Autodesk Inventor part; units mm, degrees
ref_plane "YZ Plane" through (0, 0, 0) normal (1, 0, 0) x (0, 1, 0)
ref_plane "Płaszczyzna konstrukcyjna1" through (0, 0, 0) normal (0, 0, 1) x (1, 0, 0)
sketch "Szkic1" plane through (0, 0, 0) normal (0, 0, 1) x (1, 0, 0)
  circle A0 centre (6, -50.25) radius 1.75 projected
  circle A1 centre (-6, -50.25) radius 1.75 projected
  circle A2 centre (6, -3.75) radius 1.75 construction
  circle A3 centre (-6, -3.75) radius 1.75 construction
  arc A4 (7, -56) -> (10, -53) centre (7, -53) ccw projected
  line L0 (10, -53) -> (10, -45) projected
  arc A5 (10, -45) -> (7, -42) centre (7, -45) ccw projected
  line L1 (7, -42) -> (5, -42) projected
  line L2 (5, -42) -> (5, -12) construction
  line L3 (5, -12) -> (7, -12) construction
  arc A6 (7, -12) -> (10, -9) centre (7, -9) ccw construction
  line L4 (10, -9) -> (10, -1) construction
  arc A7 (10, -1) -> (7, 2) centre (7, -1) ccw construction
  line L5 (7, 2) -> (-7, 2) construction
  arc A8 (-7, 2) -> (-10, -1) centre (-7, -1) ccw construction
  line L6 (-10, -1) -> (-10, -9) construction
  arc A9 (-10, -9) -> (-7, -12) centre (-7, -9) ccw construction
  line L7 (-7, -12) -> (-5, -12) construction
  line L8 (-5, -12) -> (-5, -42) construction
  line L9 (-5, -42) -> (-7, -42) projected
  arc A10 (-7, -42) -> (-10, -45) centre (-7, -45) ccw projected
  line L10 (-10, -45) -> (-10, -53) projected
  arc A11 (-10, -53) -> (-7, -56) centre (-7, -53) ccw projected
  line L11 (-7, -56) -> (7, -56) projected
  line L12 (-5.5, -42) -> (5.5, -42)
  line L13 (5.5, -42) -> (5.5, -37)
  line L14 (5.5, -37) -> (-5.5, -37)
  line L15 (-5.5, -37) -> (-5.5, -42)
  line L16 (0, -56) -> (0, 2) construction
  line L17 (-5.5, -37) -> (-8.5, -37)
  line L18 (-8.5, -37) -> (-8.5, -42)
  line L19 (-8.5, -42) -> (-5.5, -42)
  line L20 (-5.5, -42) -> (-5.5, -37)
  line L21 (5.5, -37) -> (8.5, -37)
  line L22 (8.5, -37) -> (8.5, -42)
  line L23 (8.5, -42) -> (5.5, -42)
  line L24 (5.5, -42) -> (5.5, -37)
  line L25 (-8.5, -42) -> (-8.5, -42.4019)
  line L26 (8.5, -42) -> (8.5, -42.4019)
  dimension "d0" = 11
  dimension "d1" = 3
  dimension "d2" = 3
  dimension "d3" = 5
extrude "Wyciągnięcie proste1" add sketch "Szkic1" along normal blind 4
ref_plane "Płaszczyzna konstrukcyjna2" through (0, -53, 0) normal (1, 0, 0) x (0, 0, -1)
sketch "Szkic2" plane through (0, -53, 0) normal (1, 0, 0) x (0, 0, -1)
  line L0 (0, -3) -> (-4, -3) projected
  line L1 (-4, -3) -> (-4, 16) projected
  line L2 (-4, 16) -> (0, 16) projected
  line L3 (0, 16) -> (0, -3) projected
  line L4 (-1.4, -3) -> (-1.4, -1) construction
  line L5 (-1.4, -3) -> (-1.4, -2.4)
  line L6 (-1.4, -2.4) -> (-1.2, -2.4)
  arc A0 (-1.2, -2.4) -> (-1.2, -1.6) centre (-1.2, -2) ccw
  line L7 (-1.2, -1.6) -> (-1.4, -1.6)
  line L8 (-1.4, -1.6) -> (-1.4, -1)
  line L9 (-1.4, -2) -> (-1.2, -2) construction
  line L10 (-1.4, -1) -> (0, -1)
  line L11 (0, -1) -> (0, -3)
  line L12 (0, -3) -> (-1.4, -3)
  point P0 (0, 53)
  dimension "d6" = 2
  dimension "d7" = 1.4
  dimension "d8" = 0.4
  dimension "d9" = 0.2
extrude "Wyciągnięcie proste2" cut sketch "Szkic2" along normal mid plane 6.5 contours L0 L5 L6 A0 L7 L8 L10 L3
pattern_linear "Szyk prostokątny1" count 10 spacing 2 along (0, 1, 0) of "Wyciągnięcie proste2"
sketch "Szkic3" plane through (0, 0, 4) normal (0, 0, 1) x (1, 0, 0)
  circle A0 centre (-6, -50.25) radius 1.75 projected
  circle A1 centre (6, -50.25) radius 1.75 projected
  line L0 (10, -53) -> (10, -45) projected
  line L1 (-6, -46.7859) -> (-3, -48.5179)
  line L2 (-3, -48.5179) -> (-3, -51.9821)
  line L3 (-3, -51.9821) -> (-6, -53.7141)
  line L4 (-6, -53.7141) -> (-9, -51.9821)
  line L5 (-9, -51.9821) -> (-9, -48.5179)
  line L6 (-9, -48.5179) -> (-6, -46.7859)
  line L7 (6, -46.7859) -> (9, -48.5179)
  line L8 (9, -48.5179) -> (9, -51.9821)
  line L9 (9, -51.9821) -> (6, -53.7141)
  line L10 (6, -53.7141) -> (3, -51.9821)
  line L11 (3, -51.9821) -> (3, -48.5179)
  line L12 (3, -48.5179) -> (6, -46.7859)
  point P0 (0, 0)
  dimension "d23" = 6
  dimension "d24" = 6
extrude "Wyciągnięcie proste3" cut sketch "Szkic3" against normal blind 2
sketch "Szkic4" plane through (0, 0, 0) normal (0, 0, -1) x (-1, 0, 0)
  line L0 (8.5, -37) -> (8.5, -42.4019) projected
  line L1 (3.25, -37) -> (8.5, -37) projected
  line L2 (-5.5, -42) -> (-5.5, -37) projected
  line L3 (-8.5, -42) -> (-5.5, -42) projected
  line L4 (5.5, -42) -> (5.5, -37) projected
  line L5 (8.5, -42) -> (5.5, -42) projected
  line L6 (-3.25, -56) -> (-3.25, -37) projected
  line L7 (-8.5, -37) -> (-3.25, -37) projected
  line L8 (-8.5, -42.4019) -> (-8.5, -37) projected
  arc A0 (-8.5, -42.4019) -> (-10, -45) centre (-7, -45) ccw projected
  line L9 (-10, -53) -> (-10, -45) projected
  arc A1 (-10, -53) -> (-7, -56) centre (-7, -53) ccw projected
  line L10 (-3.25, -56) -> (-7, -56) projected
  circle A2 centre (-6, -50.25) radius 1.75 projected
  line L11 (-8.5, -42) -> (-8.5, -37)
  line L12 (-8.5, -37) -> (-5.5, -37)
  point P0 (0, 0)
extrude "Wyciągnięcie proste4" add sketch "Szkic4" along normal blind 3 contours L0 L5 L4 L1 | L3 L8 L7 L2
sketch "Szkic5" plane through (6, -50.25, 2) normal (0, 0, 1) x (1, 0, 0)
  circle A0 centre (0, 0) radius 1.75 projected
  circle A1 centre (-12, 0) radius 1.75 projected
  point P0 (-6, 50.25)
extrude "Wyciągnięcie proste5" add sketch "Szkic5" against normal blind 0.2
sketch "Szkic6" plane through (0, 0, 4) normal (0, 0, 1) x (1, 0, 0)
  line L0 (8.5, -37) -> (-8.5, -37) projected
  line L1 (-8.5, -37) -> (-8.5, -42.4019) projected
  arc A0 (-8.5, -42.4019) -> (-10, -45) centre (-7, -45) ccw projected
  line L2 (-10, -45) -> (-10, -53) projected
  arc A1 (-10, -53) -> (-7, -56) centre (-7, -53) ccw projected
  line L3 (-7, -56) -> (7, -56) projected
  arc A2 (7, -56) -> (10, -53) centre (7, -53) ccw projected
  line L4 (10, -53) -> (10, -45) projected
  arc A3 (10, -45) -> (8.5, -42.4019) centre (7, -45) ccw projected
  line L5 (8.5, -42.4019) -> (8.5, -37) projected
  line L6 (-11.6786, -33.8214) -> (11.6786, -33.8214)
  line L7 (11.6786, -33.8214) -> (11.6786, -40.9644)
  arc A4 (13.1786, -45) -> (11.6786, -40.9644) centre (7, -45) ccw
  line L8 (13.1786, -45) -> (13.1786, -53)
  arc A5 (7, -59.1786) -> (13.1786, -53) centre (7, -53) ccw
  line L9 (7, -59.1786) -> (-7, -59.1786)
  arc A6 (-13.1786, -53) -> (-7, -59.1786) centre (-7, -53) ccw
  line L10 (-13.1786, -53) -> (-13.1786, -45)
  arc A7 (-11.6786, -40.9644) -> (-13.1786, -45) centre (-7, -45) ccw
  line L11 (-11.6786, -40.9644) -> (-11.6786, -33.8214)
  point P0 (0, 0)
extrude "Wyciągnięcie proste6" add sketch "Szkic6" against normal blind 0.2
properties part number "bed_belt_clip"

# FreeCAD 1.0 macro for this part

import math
import FreeCAD as App
import Part
import Sketcher

V = App.Vector
Q = App.Units.Quantity

doc = App.newDocument("Part")
body = doc.addObject("PartDesign::Body", "Body")

# Sketch on XY plane
sketch1 = body.newObject("Sketcher::SketchObject", "Sketch")
sketch1.AttachmentSupport = (doc.getObject("XY_Plane"), [""])
sketch1.MapMode = "FlatFace"
sketch1.addGeometry([
    Part.LineSegment(V(-7, -56, 0), V(7, -56, 0)),  # 0
    Part.ArcOfCircle(Part.Circle(V(7, -53, 0), V(0, 0, 1), 3), math.radians(-90), math.radians(0)),  # 1
    Part.LineSegment(V(10, -53, 0), V(10, -45, 0)),  # 2
    Part.ArcOfCircle(Part.Circle(V(7, -45, 0), V(0, 0, 1), 3), math.radians(0), math.radians(60)),  # 3
    Part.LineSegment(V(8.5, -42.4, 0), V(8.5, -37, 0)),  # 4
    Part.LineSegment(V(8.5, -37, 0), V(-8.5, -37, 0)),  # 5
    Part.LineSegment(V(-8.5, -37, 0), V(-8.5, -42.4, 0)),  # 6
    Part.ArcOfCircle(Part.Circle(V(-7, -45, 0), V(0, 0, 1), 3), math.radians(120), math.radians(180)),  # 7
    Part.LineSegment(V(-10, -45, 0), V(-10, -53, 0)),  # 8
    Part.ArcOfCircle(Part.Circle(V(-7, -53, 0), V(0, 0, 1), 3), math.radians(180), math.radians(270)),  # 9
    Part.Circle(V(-6, -50.2, 0), V(0, 0, 1), 1.8),  # 10
    Part.Circle(V(6, -50.2, 0), V(0, 0, 1), 1.8),  # 11
], False)
sketch1.addConstraint([
    Sketcher.Constraint("Tangent", 0, 2, 1, 1),
    Sketcher.Constraint("Tangent", 1, 2, 2, 1),
    Sketcher.Constraint("Tangent", 2, 2, 3, 1),
    Sketcher.Constraint("Coincident", 3, 2, 4, 1),
    Sketcher.Constraint("Coincident", 4, 2, 5, 1),
    Sketcher.Constraint("Coincident", 5, 2, 6, 1),
    Sketcher.Constraint("Coincident", 6, 2, 7, 1),
    Sketcher.Constraint("Tangent", 7, 2, 8, 1),
    Sketcher.Constraint("Tangent", 8, 2, 9, 1),
    Sketcher.Constraint("Tangent", 9, 2, 0, 1),
    Sketcher.Constraint("Horizontal", 0),
    Sketcher.Constraint("Vertical", 2),
    Sketcher.Constraint("Vertical", 4),
    Sketcher.Constraint("Horizontal", 5),
    Sketcher.Constraint("Vertical", 6),
    Sketcher.Constraint("Vertical", 8),
    Sketcher.Constraint("Equal", 1, 3),
    Sketcher.Constraint("Equal", 3, 7),
    Sketcher.Constraint("Equal", 7, 9),
    Sketcher.Constraint("Equal", 10, 11),
    Sketcher.Constraint("Symmetric", 3, 3, 7, 3, -2),
    Sketcher.Constraint("Symmetric", 10, 3, 11, 3, -2),
    Sketcher.Constraint("Horizontal", 3, 2, 6, 2),
    Sketcher.Constraint("Radius", 1, 3.0),
    Sketcher.Constraint("DistanceY", 0, 2, 3, 3, 11.0),
    Sketcher.Constraint("Diameter", 10, 3.5),
    Sketcher.Constraint("DistanceX", 0, 1, 0, 2, 14.0),
    Sketcher.Constraint("DistanceX", 5, 2, 5, 1, 17.0),
    Sketcher.Constraint("DistanceY", 1, 3, -1, 1, 53.0),
    Sketcher.Constraint("DistanceX", 10, 3, -1, 1, 6.0),
    Sketcher.Constraint("DistanceY", 4, 2, -1, 1, 37.0),
    Sketcher.Constraint("DistanceY", 10, 3, -1, 1, 50.25),
])
pad1 = body.newObject("PartDesign::Pad", "Pad")
pad1.Profile = sketch1
pad1.Length = 4

# Sketch on YZ plane
sketch2 = body.newObject("Sketcher::SketchObject", "Sketch001")
sketch2.AttachmentSupport = (doc.getObject("YZ_Plane"), [""])
sketch2.MapMode = "FlatFace"
sketch2.addGeometry([
    Part.LineSegment(V(-56, 1.4, 0), V(-56, 0, 0)),  # 0
    Part.LineSegment(V(-56, 0, 0), V(-54, 0, 0)),  # 1
    Part.LineSegment(V(-54, 0, 0), V(-54, 1.4, 0)),  # 2
    Part.LineSegment(V(-54, 1.4, 0), V(-54.6, 1.4, 0)),  # 3
    Part.LineSegment(V(-54.6, 1.4, 0), V(-54.6, 1.2, 0)),  # 4
    Part.ArcOfCircle(Part.Circle(V(-55, 1.2, 0), V(0, 0, 1), 0.4), math.radians(180), math.radians(360)),  # 5
    Part.LineSegment(V(-55.4, 1.2, 0), V(-55.4, 1.4, 0)),  # 6
    Part.LineSegment(V(-55.4, 1.4, 0), V(-56, 1.4, 0)),  # 7
], False)
sketch2.addConstraint([
    Sketcher.Constraint("Coincident", 0, 2, 1, 1),
    Sketcher.Constraint("Coincident", 1, 2, 2, 1),
    Sketcher.Constraint("Coincident", 2, 2, 3, 1),
    Sketcher.Constraint("Coincident", 3, 2, 4, 1),
    Sketcher.Constraint("Tangent", 4, 2, 5, 2),
    Sketcher.Constraint("Tangent", 5, 1, 6, 1),
    Sketcher.Constraint("Coincident", 6, 2, 7, 1),
    Sketcher.Constraint("Coincident", 7, 2, 0, 1),
    Sketcher.Constraint("Vertical", 0),
    Sketcher.Constraint("Horizontal", 1),
    Sketcher.Constraint("Vertical", 2),
    Sketcher.Constraint("Horizontal", 3),
    Sketcher.Constraint("Vertical", 4),
    Sketcher.Constraint("Vertical", 6),
    Sketcher.Constraint("Horizontal", 7),
    Sketcher.Constraint("PointOnObject", 0, 2, -1),
    Sketcher.Constraint("Horizontal", 3, 2, 6, 2),
    Sketcher.Constraint("Equal", 3, 7),
    Sketcher.Constraint("Radius", 5, 0.4),
    Sketcher.Constraint("DistanceX", 1, 1, 1, 2, 2.0),
    Sketcher.Constraint("DistanceY", 0, 2, 0, 1, 1.4),
    Sketcher.Constraint("DistanceY", 4, 2, 4, 1, 0.2),
    Sketcher.Constraint("DistanceX", 5, 3, -1, 1, 55.0),
])
pocket1 = body.newObject("PartDesign::Pocket", "Pocket")
pocket1.Profile = sketch2
pocket1.Length = 6.5
pocket1.Midplane = True
doc.recompute()

linearpattern = body.newObject("PartDesign::LinearPattern", "LinearPattern")
linearpattern.Originals = [pocket1]
linearpattern.Direction = (doc.getObject("Y_Axis"), [""])
linearpattern.Mode = "offset"
linearpattern.Offset = 2
linearpattern.Occurrences = 10
body.Tip = linearpattern

# Sketch on XY plane
sketch3 = body.newObject("Sketcher::SketchObject", "Sketch002")
sketch3.AttachmentSupport = (doc.getObject("XY_Plane"), [""])
sketch3.MapMode = "FlatFace"
sketch3.AttachmentOffset = App.Placement(V(0, 0, 4), App.Rotation())
sketch3.addGeometry([
    Part.LineSegment(V(-3, -48.5, 0), V(-6, -46.8, 0)),  # 0
    Part.LineSegment(V(-6, -46.8, 0), V(-9, -48.5, 0)),  # 1
    Part.LineSegment(V(-9, -48.5, 0), V(-9, -52, 0)),  # 2
    Part.LineSegment(V(-9, -52, 0), V(-6, -53.7, 0)),  # 3
    Part.LineSegment(V(-6, -53.7, 0), V(-3, -52, 0)),  # 4
    Part.LineSegment(V(-3, -52, 0), V(-3, -48.5, 0)),  # 5
    Part.Circle(V(-6, -50.2, 0), V(0, 0, 1), 1.8),  # 6
    Part.LineSegment(V(9, -48.5, 0), V(6, -46.8, 0)),  # 7
    Part.LineSegment(V(6, -46.8, 0), V(3, -48.5, 0)),  # 8
    Part.LineSegment(V(3, -48.5, 0), V(3, -52, 0)),  # 9
    Part.LineSegment(V(3, -52, 0), V(6, -53.7, 0)),  # 10
    Part.LineSegment(V(6, -53.7, 0), V(9, -52, 0)),  # 11
    Part.LineSegment(V(9, -52, 0), V(9, -48.5, 0)),  # 12
    Part.Circle(V(6, -50.2, 0), V(0, 0, 1), 1.8),  # 13
], False)
sketch3.addConstraint([
    Sketcher.Constraint("Coincident", 0, 2, 1, 1),
    Sketcher.Constraint("Coincident", 1, 2, 2, 1),
    Sketcher.Constraint("Coincident", 2, 2, 3, 1),
    Sketcher.Constraint("Coincident", 3, 2, 4, 1),
    Sketcher.Constraint("Coincident", 4, 2, 5, 1),
    Sketcher.Constraint("Coincident", 5, 2, 0, 1),
    Sketcher.Constraint("Coincident", 7, 2, 8, 1),
    Sketcher.Constraint("Coincident", 8, 2, 9, 1),
    Sketcher.Constraint("Coincident", 9, 2, 10, 1),
    Sketcher.Constraint("Coincident", 10, 2, 11, 1),
    Sketcher.Constraint("Coincident", 11, 2, 12, 1),
    Sketcher.Constraint("Coincident", 12, 2, 7, 1),
    Sketcher.Constraint("Vertical", 2),
    Sketcher.Constraint("Vertical", 5),
    Sketcher.Constraint("Vertical", 9),
    Sketcher.Constraint("Vertical", 12),
    Sketcher.Constraint("Equal", 6, 13),
    Sketcher.Constraint("Symmetric", 6, 3, 13, 3, -2),
    Sketcher.Constraint("Symmetric", 0, 2, 7, 2, -2),
    Sketcher.Constraint("Symmetric", 5, 2, 8, 2, -2),
    Sketcher.Constraint("Symmetric", 3, 2, 10, 2, -2),
    Sketcher.Constraint("Symmetric", 2, 2, 11, 2, -2),
    Sketcher.Constraint("Parallel", 0, 3),
    Sketcher.Constraint("Parallel", 1, 4),
    Sketcher.Constraint("Parallel", 3, 7),
    Sketcher.Constraint("Parallel", 4, 8),
    Sketcher.Constraint("Parallel", 7, 10),
    Sketcher.Constraint("Horizontal", 2, 2, 4, 2),
    Sketcher.Constraint("Horizontal", 1, 2, 5, 2),
    Sketcher.Constraint("Vertical", 6, 3, 0, 2),
    Sketcher.Constraint("DistanceX", 6, 3, -1, 1, 6.0),
    Sketcher.Constraint("DistanceX", 2, 2, 4, 2, 6.0),
    Sketcher.Constraint("Diameter", 6, 3.5),
    Sketcher.Constraint("Angle", 0, Q("150.0007 deg")),
    Sketcher.Constraint("DistanceY", 6, 3, -1, 1, 50.25),
    Sketcher.Constraint("DistanceY", 2, 2, 2, 1, 3.4642),
    Sketcher.Constraint("DistanceY", 0, 2, -1, 1, 46.786),
])
pocket2 = body.newObject("PartDesign::Pocket", "Pocket001")
pocket2.Profile = sketch3
pocket2.Length = 2

# Sketch on XY plane
sketch4 = body.newObject("Sketcher::SketchObject", "Sketch003")
sketch4.AttachmentSupport = (doc.getObject("XY_Plane"), [""])
sketch4.MapMode = "FlatFace"
sketch4.addGeometry([
    Part.LineSegment(V(-8.5, -42, 0), V(-8.5, -37, 0)),  # 0
    Part.LineSegment(V(-8.5, -37, 0), V(-5.5, -37, 0)),  # 1
    Part.LineSegment(V(-5.5, -37, 0), V(-5.5, -42, 0)),  # 2
    Part.LineSegment(V(-5.5, -42, 0), V(-8.5, -42, 0)),  # 3
    Part.LineSegment(V(8.5, -42, 0), V(5.5, -42, 0)),  # 4
    Part.LineSegment(V(5.5, -42, 0), V(5.5, -37, 0)),  # 5
    Part.LineSegment(V(5.5, -37, 0), V(8.5, -37, 0)),  # 6
    Part.LineSegment(V(8.5, -37, 0), V(8.5, -42, 0)),  # 7
], False)
sketch4.addConstraint([
    Sketcher.Constraint("Coincident", 0, 2, 1, 1),
    Sketcher.Constraint("Coincident", 1, 2, 2, 1),
    Sketcher.Constraint("Coincident", 2, 2, 3, 1),
    Sketcher.Constraint("Coincident", 3, 2, 0, 1),
    Sketcher.Constraint("Coincident", 4, 2, 5, 1),
    Sketcher.Constraint("Coincident", 5, 2, 6, 1),
    Sketcher.Constraint("Coincident", 6, 2, 7, 1),
    Sketcher.Constraint("Coincident", 7, 2, 4, 1),
    Sketcher.Constraint("Vertical", 0),
    Sketcher.Constraint("Horizontal", 1),
    Sketcher.Constraint("Vertical", 2),
    Sketcher.Constraint("Horizontal", 3),
    Sketcher.Constraint("Horizontal", 4),
    Sketcher.Constraint("Vertical", 5),
    Sketcher.Constraint("Horizontal", 6),
    Sketcher.Constraint("Vertical", 7),
    Sketcher.Constraint("Symmetric", 2, 2, 4, 2, -2),
    Sketcher.Constraint("Symmetric", 0, 2, 6, 2, -2),
    Sketcher.Constraint("DistanceX", 1, 1, 1, 2, 3.0),
    Sketcher.Constraint("DistanceY", 0, 1, 0, 2, 5.0),
    Sketcher.Constraint("DistanceY", 0, 2, -1, 1, 37.0),
    Sketcher.Constraint("DistanceX", 2, 2, 4, 2, 11.0),
])
pad2 = body.newObject("PartDesign::Pad", "Pad001")
pad2.Profile = sketch4
pad2.Length = 3
pad2.Reversed = True

# Sketch on XY plane
sketch5 = body.newObject("Sketcher::SketchObject", "Sketch004")
sketch5.AttachmentSupport = (doc.getObject("XY_Plane"), [""])
sketch5.MapMode = "FlatFace"
sketch5.AttachmentOffset = App.Placement(V(0, 0, 2), App.Rotation())
sketch5.addGeometry([
    Part.Circle(V(6, -50.2, 0), V(0, 0, 1), 1.8),
    Part.Circle(V(-6, -50.2, 0), V(0, 0, 1), 1.8),
], False)
sketch5.addConstraint([
    Sketcher.Constraint("Equal", 0, 1),
    Sketcher.Constraint("Symmetric", 0, 3, 1, 3, -2),
    Sketcher.Constraint("Diameter", 0, 3.5),
    Sketcher.Constraint("DistanceX", -1, 1, 0, 3, 6.0),
    Sketcher.Constraint("DistanceY", 0, 3, -1, 1, 50.25),
])
pad3 = body.newObject("PartDesign::Pad", "Pad002")
pad3.Profile = sketch5
pad3.Length = 0.2
pad3.Reversed = True

# Sketch on XY plane
sketch6 = body.newObject("Sketcher::SketchObject", "Sketch005")
sketch6.AttachmentSupport = (doc.getObject("XY_Plane"), [""])
sketch6.MapMode = "FlatFace"
sketch6.AttachmentOffset = App.Placement(V(0, 0, 4), App.Rotation())
sketch6.addGeometry([
    Part.LineSegment(V(11.7, -33.8, 0), V(-11.7, -33.8, 0)),  # 0
    Part.LineSegment(V(-11.7, -33.8, 0), V(-11.7, -41, 0)),  # 1
    Part.ArcOfCircle(Part.Circle(V(-7, -45, 0), V(0, 0, 1), 6.2), math.radians(139), math.radians(180)),  # 2
    Part.LineSegment(V(-13.2, -45, 0), V(-13.2, -53, 0)),  # 3
    Part.ArcOfCircle(Part.Circle(V(-7, -53, 0), V(0, 0, 1), 6.2), math.radians(180), math.radians(270)),  # 4
    Part.LineSegment(V(-7, -59.2, 0), V(7, -59.2, 0)),  # 5
    Part.ArcOfCircle(Part.Circle(V(7, -53, 0), V(0, 0, 1), 6.2), math.radians(-90), math.radians(0)),  # 6
    Part.LineSegment(V(13.2, -53, 0), V(13.2, -45, 0)),  # 7
    Part.ArcOfCircle(Part.Circle(V(7, -45, 0), V(0, 0, 1), 6.2), math.radians(0), math.radians(41)),  # 8
    Part.LineSegment(V(11.7, -41, 0), V(11.7, -33.8, 0)),  # 9
    Part.LineSegment(V(-8.5, -37, 0), V(8.5, -37, 0)),  # 10
    Part.LineSegment(V(8.5, -37, 0), V(8.5, -42.4, 0)),  # 11
    Part.ArcOfCircle(Part.Circle(V(7, -45, 0), V(0, 0, 1), 3), math.radians(0), math.radians(60)),  # 12
    Part.LineSegment(V(10, -45, 0), V(10, -53, 0)),  # 13
    Part.ArcOfCircle(Part.Circle(V(7, -53, 0), V(0, 0, 1), 3), math.radians(-90), math.radians(0)),  # 14
    Part.LineSegment(V(7, -56, 0), V(-7, -56, 0)),  # 15
    Part.ArcOfCircle(Part.Circle(V(-7, -53, 0), V(0, 0, 1), 3), math.radians(180), math.radians(270)),  # 16
    Part.LineSegment(V(-10, -53, 0), V(-10, -45, 0)),  # 17
    Part.ArcOfCircle(Part.Circle(V(-7, -45, 0), V(0, 0, 1), 3), math.radians(120), math.radians(180)),  # 18
    Part.LineSegment(V(-8.5, -42.4, 0), V(-8.5, -37, 0)),  # 19
], False)
sketch6.addConstraint([
    Sketcher.Constraint("Coincident", 0, 2, 1, 1),
    Sketcher.Constraint("Coincident", 1, 2, 2, 1),
    Sketcher.Constraint("Tangent", 2, 2, 3, 1),
    Sketcher.Constraint("Tangent", 3, 2, 4, 1),
    Sketcher.Constraint("Tangent", 4, 2, 5, 1),
    Sketcher.Constraint("Tangent", 5, 2, 6, 1),
    Sketcher.Constraint("Tangent", 6, 2, 7, 1),
    Sketcher.Constraint("Tangent", 7, 2, 8, 1),
    Sketcher.Constraint("Coincident", 8, 2, 9, 1),
    Sketcher.Constraint("Coincident", 9, 2, 0, 1),
    Sketcher.Constraint("Coincident", 10, 2, 11, 1),
    Sketcher.Constraint("Coincident", 11, 2, 12, 2),
    Sketcher.Constraint("Tangent", 12, 1, 13, 1),
    Sketcher.Constraint("Tangent", 13, 2, 14, 2),
    Sketcher.Constraint("Tangent", 14, 1, 15, 1),
    Sketcher.Constraint("Tangent", 15, 2, 16, 2),
    Sketcher.Constraint("Tangent", 16, 1, 17, 1),
    Sketcher.Constraint("Tangent", 17, 2, 18, 2),
    Sketcher.Constraint("Coincident", 18, 1, 19, 1),
    Sketcher.Constraint("Coincident", 19, 2, 10, 1),
    Sketcher.Constraint("Horizontal", 0),
    Sketcher.Constraint("Vertical", 1),
    Sketcher.Constraint("Vertical", 3),
    Sketcher.Constraint("Horizontal", 5),
    Sketcher.Constraint("Vertical", 7),
    Sketcher.Constraint("Vertical", 9),
    Sketcher.Constraint("Horizontal", 10),
    Sketcher.Constraint("Vertical", 11),
    Sketcher.Constraint("Vertical", 13),
    Sketcher.Constraint("Horizontal", 15),
    Sketcher.Constraint("Vertical", 17),
    Sketcher.Constraint("Vertical", 19),
    Sketcher.Constraint("Coincident", 12, 3, 8, 3),
    Sketcher.Constraint("Coincident", 14, 3, 6, 3),
    Sketcher.Constraint("Coincident", 16, 3, 4, 3),
    Sketcher.Constraint("Coincident", 18, 3, 2, 3),
    Sketcher.Constraint("Equal", 2, 4),
    Sketcher.Constraint("Equal", 4, 6),
    Sketcher.Constraint("Equal", 6, 8),
    Sketcher.Constraint("Symmetric", 2, 3, 8, 3, -2),
    Sketcher.Constraint("Horizontal", 1, 2, 8, 2),
    Sketcher.Constraint("Horizontal", 11, 2, 18, 1),
    Sketcher.Constraint("Radius", 12, 3.0),
    Sketcher.Constraint("DistanceX", 5, 1, 5, 2, 14.0),
    Sketcher.Constraint("DistanceX", 10, 1, 10, 2, 17.0),
    Sketcher.Constraint("DistanceY", 3, 2, 3, 1, 8.0),
    Sketcher.Constraint("DistanceY", 2, 3, -1, 1, 45.0),
    Sketcher.Constraint("DistanceY", 10, 2, -1, 1, 37.0),
    Sketcher.Constraint("Radius", 2, 6.1786),
    Sketcher.Constraint("DistanceX", 2, 2, 1, 2, 1.5),
    Sketcher.Constraint("DistanceY", 1, 2, 1, 1, 7.143),
])
pad4 = body.newObject("PartDesign::Pad", "Pad003")
pad4.Profile = sketch6
pad4.Length = 0.2
pad4.Reversed = True

doc.recompute()
